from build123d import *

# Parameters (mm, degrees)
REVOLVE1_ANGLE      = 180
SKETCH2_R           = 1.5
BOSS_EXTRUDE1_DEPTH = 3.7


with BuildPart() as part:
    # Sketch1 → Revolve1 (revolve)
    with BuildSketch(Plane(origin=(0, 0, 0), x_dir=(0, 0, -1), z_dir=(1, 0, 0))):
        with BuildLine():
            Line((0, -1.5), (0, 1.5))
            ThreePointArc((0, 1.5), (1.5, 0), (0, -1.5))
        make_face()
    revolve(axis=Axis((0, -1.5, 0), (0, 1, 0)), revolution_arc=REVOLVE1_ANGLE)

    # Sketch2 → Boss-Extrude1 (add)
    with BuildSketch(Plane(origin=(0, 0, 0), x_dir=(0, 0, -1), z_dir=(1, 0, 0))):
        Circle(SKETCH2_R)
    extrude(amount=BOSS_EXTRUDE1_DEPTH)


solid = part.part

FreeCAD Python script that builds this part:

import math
import FreeCAD as App
import Part
import Sketcher
Q = App.Units.Quantity

doc = App.newDocument("Part")
body = doc.addObject("PartDesign::Body", "Body")

# Sketch on YZ plane
sketch1 = body.newObject("Sketcher::SketchObject", "Sketch")
sketch1.AttachmentSupport = (doc.getObject("YZ_Plane"), [""])
sketch1.MapMode = "FlatFace"
sketch1.addGeometry([
    Part.LineSegment(App.Vector(1.5, 0, 0), App.Vector(-1.5, 0, 0)),
    Part.ArcOfCircle(Part.Circle(App.Vector(0, 0, 0), App.Vector(0, 0, 1), 1.5), math.radians(180), math.radians(360)),
], False)
sketch1.addConstraint([
    Sketcher.Constraint("Coincident", 0, 1, 1, 2),
    Sketcher.Constraint("Coincident", 1, 1, 0, 2),
    Sketcher.Constraint("Horizontal", 0),
    Sketcher.Constraint("Coincident", 1, 3, -1, 1),
    Sketcher.Constraint("PointOnObject", 0, 1, -1),
    Sketcher.Constraint("Radius", 1, Q("1.5 mm")),
])
revolution = body.newObject("PartDesign::Revolution", "Revolution")
revolution.Profile = sketch1
revolution.ReferenceAxis = (sketch1, ["H_Axis"])
revolution.Angle = 180

# Sketch on YZ plane
sketch2 = body.newObject("Sketcher::SketchObject", "Sketch001")
sketch2.AttachmentSupport = (doc.getObject("YZ_Plane"), [""])
sketch2.MapMode = "FlatFace"
sketch2.addGeometry(Part.Circle(App.Vector(0, 0, 0), App.Vector(0, 0, 1), 1.5), False)
sketch2.addConstraint([
    Sketcher.Constraint("Coincident", 0, 3, -1, 1),
    Sketcher.Constraint("Diameter", 0, Q("3 mm")),
])
pad1 = body.newObject("PartDesign::Pad", "Pad")
pad1.Profile = sketch2
pad1.Length = 3.7

doc.recompute()
